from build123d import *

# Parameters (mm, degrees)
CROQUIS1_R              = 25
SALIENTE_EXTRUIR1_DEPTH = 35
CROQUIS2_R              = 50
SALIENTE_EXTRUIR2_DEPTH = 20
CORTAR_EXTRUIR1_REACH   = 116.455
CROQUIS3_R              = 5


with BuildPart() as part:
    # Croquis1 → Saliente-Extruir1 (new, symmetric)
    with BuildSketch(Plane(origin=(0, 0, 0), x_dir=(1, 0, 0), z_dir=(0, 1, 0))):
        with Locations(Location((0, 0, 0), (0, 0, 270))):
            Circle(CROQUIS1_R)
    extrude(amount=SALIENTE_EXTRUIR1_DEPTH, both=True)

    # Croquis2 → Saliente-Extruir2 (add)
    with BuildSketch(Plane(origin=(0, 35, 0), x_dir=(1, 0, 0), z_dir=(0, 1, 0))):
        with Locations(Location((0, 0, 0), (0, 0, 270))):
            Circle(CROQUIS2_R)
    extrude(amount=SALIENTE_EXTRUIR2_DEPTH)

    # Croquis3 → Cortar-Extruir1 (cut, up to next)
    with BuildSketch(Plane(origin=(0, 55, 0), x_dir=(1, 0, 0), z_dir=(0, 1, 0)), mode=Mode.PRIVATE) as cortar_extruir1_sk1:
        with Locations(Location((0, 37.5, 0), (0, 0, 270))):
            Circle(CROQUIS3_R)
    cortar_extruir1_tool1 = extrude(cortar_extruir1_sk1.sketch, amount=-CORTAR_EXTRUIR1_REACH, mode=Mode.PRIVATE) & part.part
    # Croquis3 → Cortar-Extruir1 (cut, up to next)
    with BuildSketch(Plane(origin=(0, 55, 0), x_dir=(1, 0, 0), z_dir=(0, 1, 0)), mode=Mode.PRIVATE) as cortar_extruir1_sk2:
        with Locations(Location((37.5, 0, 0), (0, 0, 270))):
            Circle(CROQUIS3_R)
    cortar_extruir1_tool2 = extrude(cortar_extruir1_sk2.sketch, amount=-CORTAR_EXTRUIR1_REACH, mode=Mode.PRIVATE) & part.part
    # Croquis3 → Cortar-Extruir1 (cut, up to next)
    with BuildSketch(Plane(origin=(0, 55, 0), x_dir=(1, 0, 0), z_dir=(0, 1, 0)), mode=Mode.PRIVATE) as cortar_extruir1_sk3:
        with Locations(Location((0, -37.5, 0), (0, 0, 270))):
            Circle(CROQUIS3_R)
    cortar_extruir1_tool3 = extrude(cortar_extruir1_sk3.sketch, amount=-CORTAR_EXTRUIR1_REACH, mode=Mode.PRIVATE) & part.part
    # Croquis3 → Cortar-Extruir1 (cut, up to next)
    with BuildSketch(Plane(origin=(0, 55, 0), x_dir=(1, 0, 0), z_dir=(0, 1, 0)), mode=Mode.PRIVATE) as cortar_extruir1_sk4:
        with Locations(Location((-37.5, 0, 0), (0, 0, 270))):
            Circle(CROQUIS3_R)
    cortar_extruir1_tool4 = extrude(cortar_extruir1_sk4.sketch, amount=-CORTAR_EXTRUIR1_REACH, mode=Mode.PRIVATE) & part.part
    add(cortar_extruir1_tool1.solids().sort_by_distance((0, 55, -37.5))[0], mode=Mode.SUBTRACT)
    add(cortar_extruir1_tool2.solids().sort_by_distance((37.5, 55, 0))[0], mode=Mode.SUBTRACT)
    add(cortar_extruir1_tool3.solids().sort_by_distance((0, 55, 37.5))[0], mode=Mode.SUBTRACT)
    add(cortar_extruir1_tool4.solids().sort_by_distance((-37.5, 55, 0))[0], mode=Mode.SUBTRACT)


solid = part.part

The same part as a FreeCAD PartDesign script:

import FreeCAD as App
import Part
import Sketcher

doc = App.newDocument("Part")
body = doc.addObject("PartDesign::Body", "Body")

sketch1 = body.newObject("Sketcher::SketchObject", "Sketch")
sketch1.AttachmentSupport = (doc.getObject("XZ_Plane"), [""])
sketch1.MapMode = "FlatFace"
sketch1.addGeometry(Part.Circle(App.Vector(0, 0, 0), App.Vector(0, 0, 1), 25), False)
sketch1.addConstraint(Sketcher.Constraint("Coincident", 0, 3, -1, 1))
sketch1.addConstraint(Sketcher.Constraint("Diameter", 0, 50.0))
pad1 = body.newObject("PartDesign::Pad", "Pad")
pad1.Profile = sketch1
pad1.Length = 70
pad1.Midplane = True

sketch2 = body.newObject("Sketcher::SketchObject", "Sketch001")
sketch2.AttachmentSupport = (doc.getObject("XZ_Plane"), [""])
sketch2.MapMode = "FlatFace"
sketch2.AttachmentOffset = App.Placement(App.Vector(0, 0, -35), App.Rotation())
sketch2.addGeometry(Part.Circle(App.Vector(0, 0, 0), App.Vector(0, 0, 1), 50), False)
sketch2.addConstraint(Sketcher.Constraint("Coincident", 0, 3, -1, 1))
sketch2.addConstraint(Sketcher.Constraint("Diameter", 0, 100.0))
pad2 = body.newObject("PartDesign::Pad", "Pad001")
pad2.Profile = sketch2
pad2.Length = 20
pad2.Reversed = True

sketch3 = body.newObject("Sketcher::SketchObject", "Sketch002")
sketch3.AttachmentSupport = (doc.getObject("XZ_Plane"), [""])
sketch3.MapMode = "FlatFace"
sketch3.AttachmentOffset = App.Placement(App.Vector(0, 0, -55), App.Rotation())
sketch3.addGeometry(Part.Circle(App.Vector(0, -37.5, 0), App.Vector(0, 0, 1), 5), False)
sketch3.addConstraint(Sketcher.Constraint("PointOnObject", 0, 3, -2))
sketch3.addConstraint(Sketcher.Constraint("Diameter", 0, 10.0))
sketch3.addConstraint(Sketcher.Constraint("DistanceY", 0, 3, -1, 1, 37.5))
pocket1 = body.newObject("PartDesign::Pocket", "Pocket")
pocket1.Profile = sketch3
pocket1.Type = "UpToFirst"
pocket1.Reversed = True

sketch4 = body.newObject("Sketcher::SketchObject", "Sketch003")
sketch4.AttachmentSupport = (doc.getObject("XZ_Plane"), [""])
sketch4.MapMode = "FlatFace"
sketch4.AttachmentOffset = App.Placement(App.Vector(0, 0, -55), App.Rotation())
sketch4.addGeometry(Part.Circle(App.Vector(37.5, 0, 0), App.Vector(0, 0, 1), 5), False)
sketch4.addConstraint(Sketcher.Constraint("PointOnObject", 0, 3, -1))
sketch4.addConstraint(Sketcher.Constraint("Diameter", 0, 10.0))
sketch4.addConstraint(Sketcher.Constraint("DistanceX", -1, 1, 0, 3, 37.5))
pocket2 = body.newObject("PartDesign::Pocket", "Pocket001")
pocket2.Profile = sketch4
pocket2.Type = "UpToFirst"
pocket2.Reversed = True

sketch5 = body.newObject("Sketcher::SketchObject", "Sketch004")
sketch5.AttachmentSupport = (doc.getObject("XZ_Plane"), [""])
sketch5.MapMode = "FlatFace"
sketch5.AttachmentOffset = App.Placement(App.Vector(0, 0, -55), App.Rotation())
sketch5.addGeometry(Part.Circle(App.Vector(0, 37.5, 0), App.Vector(0, 0, 1), 5), False)
sketch5.addConstraint(Sketcher.Constraint("PointOnObject", 0, 3, -2))
sketch5.addConstraint(Sketcher.Constraint("Diameter", 0, 10.0))
sketch5.addConstraint(Sketcher.Constraint("DistanceY", -1, 1, 0, 3, 37.5))
pocket3 = body.newObject("PartDesign::Pocket", "Pocket002")
pocket3.Profile = sketch5
pocket3.Type = "UpToFirst"
pocket3.Reversed = True

sketch6 = body.newObject("Sketcher::SketchObject", "Sketch005")
sketch6.AttachmentSupport = (doc.getObject("XZ_Plane"), [""])
sketch6.MapMode = "FlatFace"
sketch6.AttachmentOffset = App.Placement(App.Vector(0, 0, -55), App.Rotation())
sketch6.addGeometry(Part.Circle(App.Vector(-37.5, 0, 0), App.Vector(0, 0, 1), 5), False)
sketch6.addConstraint(Sketcher.Constraint("PointOnObject", 0, 3, -1))
sketch6.addConstraint(Sketcher.Constraint("Diameter", 0, 10.0))
sketch6.addConstraint(Sketcher.Constraint("DistanceX", 0, 3, -1, 1, 37.5))
pocket4 = body.newObject("PartDesign::Pocket", "Pocket003")
pocket4.Profile = sketch6
pocket4.Type = "UpToFirst"
pocket4.Reversed = True

doc.recompute()
